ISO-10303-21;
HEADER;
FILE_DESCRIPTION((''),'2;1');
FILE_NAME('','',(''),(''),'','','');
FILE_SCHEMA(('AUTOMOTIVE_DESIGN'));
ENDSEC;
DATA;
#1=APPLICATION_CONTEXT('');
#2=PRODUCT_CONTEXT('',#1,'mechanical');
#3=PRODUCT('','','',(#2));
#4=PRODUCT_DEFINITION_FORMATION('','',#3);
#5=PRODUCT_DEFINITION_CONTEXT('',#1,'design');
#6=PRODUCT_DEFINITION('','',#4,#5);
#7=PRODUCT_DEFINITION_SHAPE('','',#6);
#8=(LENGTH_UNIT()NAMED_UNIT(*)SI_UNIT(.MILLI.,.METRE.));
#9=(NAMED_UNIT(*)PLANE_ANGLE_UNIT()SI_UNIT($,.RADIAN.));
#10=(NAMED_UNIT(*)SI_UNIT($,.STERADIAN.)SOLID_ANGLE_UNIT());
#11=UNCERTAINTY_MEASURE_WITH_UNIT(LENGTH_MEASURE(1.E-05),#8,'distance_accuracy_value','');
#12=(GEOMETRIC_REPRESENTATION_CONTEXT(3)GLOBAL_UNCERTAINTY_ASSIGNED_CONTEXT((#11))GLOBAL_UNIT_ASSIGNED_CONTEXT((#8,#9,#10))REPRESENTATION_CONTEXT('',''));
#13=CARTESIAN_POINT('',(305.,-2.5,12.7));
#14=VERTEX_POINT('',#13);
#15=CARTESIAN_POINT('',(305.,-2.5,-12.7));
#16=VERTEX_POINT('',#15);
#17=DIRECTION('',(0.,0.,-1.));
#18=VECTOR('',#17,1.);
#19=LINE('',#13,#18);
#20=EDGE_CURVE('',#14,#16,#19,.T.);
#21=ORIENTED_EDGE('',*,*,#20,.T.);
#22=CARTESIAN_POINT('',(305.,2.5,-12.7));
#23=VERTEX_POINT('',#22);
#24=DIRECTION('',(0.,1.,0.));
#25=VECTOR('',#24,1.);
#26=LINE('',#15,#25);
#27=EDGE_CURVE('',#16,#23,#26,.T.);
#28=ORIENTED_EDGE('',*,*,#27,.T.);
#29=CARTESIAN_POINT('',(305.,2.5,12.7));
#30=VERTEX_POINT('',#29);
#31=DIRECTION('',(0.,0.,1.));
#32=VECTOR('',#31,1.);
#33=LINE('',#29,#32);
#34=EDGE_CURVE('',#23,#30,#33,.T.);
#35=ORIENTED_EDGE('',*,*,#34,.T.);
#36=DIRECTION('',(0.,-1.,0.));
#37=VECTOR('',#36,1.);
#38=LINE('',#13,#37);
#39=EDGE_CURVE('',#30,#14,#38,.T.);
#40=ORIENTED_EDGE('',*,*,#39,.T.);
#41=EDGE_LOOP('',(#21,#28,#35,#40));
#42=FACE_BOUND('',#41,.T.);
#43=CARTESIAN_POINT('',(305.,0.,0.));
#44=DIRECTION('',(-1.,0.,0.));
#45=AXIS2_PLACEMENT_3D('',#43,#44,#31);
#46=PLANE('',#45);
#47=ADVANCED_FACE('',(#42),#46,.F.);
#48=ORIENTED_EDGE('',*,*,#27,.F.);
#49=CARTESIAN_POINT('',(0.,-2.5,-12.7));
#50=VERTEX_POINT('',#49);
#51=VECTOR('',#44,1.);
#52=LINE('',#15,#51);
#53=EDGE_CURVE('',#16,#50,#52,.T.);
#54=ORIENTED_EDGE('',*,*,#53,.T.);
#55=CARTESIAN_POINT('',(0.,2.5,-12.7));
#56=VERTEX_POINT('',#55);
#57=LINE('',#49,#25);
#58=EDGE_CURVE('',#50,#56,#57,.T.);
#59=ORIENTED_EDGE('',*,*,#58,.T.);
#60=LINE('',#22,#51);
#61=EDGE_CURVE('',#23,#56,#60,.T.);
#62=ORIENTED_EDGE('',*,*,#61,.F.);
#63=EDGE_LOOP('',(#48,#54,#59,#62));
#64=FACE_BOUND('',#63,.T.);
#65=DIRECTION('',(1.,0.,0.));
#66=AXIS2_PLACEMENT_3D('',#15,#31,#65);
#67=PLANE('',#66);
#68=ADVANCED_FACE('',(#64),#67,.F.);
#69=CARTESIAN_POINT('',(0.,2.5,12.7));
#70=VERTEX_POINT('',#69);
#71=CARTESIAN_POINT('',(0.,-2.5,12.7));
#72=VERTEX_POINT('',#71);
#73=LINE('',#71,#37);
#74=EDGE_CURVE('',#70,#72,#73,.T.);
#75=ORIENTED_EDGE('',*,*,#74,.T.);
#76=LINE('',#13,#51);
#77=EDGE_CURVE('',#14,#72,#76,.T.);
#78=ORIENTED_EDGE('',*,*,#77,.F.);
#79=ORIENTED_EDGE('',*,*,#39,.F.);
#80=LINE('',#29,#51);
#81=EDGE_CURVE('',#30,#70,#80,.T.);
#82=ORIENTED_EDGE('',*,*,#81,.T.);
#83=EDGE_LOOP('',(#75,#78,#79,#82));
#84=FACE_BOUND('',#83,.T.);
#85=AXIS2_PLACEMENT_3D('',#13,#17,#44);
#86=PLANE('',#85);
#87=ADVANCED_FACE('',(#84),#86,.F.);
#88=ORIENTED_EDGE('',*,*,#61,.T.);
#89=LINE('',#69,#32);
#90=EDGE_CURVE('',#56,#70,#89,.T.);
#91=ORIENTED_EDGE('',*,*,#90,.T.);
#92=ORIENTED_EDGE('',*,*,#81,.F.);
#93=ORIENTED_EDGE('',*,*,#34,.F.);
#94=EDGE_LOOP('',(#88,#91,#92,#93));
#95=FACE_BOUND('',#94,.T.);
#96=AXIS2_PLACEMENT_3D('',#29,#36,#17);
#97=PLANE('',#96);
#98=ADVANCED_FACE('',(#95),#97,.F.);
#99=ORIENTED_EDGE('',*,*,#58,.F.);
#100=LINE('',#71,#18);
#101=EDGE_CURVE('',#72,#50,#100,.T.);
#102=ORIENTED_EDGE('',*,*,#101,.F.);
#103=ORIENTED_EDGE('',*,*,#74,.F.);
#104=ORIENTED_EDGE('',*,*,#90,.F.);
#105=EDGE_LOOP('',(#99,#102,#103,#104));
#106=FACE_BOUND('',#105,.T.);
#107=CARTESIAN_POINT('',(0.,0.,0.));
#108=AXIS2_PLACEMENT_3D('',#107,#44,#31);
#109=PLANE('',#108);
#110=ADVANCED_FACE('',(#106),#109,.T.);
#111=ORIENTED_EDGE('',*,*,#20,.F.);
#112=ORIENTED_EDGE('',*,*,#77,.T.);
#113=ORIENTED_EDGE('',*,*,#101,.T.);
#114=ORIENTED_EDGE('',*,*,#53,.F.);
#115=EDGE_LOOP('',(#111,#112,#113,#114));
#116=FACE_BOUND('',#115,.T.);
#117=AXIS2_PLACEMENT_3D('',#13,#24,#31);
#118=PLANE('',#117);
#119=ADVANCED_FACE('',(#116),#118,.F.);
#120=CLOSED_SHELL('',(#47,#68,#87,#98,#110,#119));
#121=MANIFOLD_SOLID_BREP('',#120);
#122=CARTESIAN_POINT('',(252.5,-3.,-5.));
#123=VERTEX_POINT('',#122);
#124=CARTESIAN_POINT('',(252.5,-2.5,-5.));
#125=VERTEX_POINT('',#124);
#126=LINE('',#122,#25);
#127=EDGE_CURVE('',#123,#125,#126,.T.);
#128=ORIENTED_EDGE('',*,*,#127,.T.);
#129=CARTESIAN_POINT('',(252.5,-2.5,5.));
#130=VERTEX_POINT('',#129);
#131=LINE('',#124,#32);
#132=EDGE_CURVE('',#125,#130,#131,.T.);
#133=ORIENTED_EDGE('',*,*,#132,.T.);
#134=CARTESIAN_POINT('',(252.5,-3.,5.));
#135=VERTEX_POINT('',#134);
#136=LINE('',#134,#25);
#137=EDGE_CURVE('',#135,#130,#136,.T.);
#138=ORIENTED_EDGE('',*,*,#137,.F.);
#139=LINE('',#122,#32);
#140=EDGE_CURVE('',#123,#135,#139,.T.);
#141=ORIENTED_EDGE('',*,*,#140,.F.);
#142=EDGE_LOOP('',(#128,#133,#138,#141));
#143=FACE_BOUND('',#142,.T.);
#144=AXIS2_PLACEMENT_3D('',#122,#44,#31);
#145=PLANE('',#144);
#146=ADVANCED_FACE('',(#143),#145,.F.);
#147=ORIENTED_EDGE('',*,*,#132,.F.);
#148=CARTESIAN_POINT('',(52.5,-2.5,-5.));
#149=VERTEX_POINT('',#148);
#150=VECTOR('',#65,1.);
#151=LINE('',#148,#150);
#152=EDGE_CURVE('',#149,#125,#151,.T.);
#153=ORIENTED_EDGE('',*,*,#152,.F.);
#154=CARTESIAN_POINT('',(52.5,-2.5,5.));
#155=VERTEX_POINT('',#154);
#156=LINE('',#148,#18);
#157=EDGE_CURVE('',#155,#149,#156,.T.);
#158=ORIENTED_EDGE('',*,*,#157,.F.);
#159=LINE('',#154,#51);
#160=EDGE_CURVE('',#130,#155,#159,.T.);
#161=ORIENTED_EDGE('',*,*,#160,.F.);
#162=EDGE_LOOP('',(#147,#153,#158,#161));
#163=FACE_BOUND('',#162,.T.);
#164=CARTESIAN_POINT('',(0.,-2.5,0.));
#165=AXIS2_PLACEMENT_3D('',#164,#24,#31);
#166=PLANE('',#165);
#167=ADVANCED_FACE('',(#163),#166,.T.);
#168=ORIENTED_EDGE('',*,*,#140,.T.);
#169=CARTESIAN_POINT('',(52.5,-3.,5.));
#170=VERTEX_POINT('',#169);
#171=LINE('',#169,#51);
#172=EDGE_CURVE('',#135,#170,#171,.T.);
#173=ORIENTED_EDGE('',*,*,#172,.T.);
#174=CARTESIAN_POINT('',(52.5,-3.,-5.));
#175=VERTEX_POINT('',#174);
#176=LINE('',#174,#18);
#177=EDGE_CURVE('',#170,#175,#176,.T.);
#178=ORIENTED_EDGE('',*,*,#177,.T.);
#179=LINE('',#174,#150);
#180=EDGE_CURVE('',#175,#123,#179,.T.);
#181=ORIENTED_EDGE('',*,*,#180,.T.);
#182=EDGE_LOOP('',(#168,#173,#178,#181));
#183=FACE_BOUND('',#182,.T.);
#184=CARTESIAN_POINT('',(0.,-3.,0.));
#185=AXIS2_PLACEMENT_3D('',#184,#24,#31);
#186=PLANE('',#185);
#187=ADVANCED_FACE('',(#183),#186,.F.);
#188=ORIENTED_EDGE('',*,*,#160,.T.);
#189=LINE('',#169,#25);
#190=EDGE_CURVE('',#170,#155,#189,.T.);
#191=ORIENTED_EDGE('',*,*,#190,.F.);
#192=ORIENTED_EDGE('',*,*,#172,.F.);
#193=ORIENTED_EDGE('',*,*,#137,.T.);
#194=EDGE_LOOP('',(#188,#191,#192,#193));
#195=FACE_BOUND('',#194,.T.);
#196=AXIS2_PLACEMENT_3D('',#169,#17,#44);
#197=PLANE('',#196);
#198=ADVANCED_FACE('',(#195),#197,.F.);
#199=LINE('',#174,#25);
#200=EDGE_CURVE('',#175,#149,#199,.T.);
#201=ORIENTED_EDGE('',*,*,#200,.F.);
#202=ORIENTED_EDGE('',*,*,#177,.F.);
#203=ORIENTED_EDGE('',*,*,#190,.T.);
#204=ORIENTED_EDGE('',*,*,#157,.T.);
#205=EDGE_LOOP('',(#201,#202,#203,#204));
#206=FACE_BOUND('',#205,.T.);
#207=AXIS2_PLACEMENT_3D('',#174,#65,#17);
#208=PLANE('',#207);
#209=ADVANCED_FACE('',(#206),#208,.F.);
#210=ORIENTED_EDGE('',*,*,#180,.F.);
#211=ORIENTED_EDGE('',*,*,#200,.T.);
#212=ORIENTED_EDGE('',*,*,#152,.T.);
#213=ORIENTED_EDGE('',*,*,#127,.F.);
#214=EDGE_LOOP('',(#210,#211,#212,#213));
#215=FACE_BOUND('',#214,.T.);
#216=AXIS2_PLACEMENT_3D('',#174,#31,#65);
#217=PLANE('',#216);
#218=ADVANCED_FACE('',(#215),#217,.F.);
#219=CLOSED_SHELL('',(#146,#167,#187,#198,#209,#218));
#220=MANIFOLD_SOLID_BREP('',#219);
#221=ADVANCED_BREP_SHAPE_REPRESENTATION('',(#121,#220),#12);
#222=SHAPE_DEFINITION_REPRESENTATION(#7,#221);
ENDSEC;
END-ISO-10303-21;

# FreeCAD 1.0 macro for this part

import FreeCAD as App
import Part
import Sketcher
Q = App.Units.Quantity


def add_polygon(sketch, points):
    """Adds a closed chain of lines whose ends are joined by coincident constraints."""
    first, n = sketch.GeometryCount, len(points)
    for a, b in zip(points, points[1:] + points[:1]):
        sketch.addGeometry(Part.LineSegment(App.Vector(*a, 0), App.Vector(*b, 0)), False)
    for i in range(n):
        sketch.addConstraint(Sketcher.Constraint("Coincident", first + i, 2, first + (i + 1) % n, 1))

doc = App.newDocument("Part")
body = doc.addObject("PartDesign::Body", "Body")

# Sketch on YZ plane
sketch1 = body.newObject("Sketcher::SketchObject", "Sketch")
sketch1.AttachmentSupport = (doc.getObject("YZ_Plane"), [""])
sketch1.MapMode = "FlatFace"
add_polygon(sketch1, [(2, 13), (-2, 13), (-2, -13), (2, -13)])  # lines 0-3
sketch1.addConstraint(Sketcher.Constraint("Horizontal", 0))
sketch1.addConstraint(Sketcher.Constraint("Vertical", 1))
sketch1.addConstraint(Sketcher.Constraint("Horizontal", 2))
sketch1.addConstraint(Sketcher.Constraint("Vertical", 3))
sketch1.addConstraint(Sketcher.Constraint("Symmetric", 0, 2, 2, 2, -1, 1))
sketch1.addConstraint(Sketcher.Constraint("DistanceX", 0, 2, 0, 1, Q("5 mm")))
sketch1.addConstraint(Sketcher.Constraint("DistanceY", 1, 2, 1, 1, Q("25.4 mm")))
pad1 = body.newObject("PartDesign::Pad", "Pad")
pad1.Profile = sketch1
pad1.Length = 305
body2 = doc.addObject("PartDesign::Body", "Body001")

# Sketch on XZ plane
sketch2 = body2.newObject("Sketcher::SketchObject", "Sketch001")
sketch2.AttachmentSupport = (doc.getObject("XZ_Plane001"), [""])
sketch2.MapMode = "FlatFace"
sketch2.AttachmentOffset = App.Placement(App.Vector(0, 0, 2.5), App.Rotation())
add_polygon(sketch2, [(52, 5), (52, -5), (252, -5), (252, 5)])  # lines 0-3
sketch2.addConstraint(Sketcher.Constraint("Vertical", 0))
sketch2.addConstraint(Sketcher.Constraint("Horizontal", 1))
sketch2.addConstraint(Sketcher.Constraint("Vertical", 2))
sketch2.addConstraint(Sketcher.Constraint("Horizontal", 3))
sketch2.addConstraint(Sketcher.Constraint("DistanceX", 1, 1, 1, 2, Q("200 mm")))
sketch2.addConstraint(Sketcher.Constraint("DistanceY", 0, 2, 0, 1, Q("10 mm")))
sketch2.addConstraint(Sketcher.Constraint("DistanceY", 0, 2, -1, 1, Q("5 mm")))
sketch2.addConstraint(Sketcher.Constraint("DistanceX", -1, 1, 0, 2, Q("52.5 mm")))
pad2 = body2.newObject("PartDesign::Pad", "Pad001")
pad2.Profile = sketch2
pad2.Length = 0.5

doc.recompute()
